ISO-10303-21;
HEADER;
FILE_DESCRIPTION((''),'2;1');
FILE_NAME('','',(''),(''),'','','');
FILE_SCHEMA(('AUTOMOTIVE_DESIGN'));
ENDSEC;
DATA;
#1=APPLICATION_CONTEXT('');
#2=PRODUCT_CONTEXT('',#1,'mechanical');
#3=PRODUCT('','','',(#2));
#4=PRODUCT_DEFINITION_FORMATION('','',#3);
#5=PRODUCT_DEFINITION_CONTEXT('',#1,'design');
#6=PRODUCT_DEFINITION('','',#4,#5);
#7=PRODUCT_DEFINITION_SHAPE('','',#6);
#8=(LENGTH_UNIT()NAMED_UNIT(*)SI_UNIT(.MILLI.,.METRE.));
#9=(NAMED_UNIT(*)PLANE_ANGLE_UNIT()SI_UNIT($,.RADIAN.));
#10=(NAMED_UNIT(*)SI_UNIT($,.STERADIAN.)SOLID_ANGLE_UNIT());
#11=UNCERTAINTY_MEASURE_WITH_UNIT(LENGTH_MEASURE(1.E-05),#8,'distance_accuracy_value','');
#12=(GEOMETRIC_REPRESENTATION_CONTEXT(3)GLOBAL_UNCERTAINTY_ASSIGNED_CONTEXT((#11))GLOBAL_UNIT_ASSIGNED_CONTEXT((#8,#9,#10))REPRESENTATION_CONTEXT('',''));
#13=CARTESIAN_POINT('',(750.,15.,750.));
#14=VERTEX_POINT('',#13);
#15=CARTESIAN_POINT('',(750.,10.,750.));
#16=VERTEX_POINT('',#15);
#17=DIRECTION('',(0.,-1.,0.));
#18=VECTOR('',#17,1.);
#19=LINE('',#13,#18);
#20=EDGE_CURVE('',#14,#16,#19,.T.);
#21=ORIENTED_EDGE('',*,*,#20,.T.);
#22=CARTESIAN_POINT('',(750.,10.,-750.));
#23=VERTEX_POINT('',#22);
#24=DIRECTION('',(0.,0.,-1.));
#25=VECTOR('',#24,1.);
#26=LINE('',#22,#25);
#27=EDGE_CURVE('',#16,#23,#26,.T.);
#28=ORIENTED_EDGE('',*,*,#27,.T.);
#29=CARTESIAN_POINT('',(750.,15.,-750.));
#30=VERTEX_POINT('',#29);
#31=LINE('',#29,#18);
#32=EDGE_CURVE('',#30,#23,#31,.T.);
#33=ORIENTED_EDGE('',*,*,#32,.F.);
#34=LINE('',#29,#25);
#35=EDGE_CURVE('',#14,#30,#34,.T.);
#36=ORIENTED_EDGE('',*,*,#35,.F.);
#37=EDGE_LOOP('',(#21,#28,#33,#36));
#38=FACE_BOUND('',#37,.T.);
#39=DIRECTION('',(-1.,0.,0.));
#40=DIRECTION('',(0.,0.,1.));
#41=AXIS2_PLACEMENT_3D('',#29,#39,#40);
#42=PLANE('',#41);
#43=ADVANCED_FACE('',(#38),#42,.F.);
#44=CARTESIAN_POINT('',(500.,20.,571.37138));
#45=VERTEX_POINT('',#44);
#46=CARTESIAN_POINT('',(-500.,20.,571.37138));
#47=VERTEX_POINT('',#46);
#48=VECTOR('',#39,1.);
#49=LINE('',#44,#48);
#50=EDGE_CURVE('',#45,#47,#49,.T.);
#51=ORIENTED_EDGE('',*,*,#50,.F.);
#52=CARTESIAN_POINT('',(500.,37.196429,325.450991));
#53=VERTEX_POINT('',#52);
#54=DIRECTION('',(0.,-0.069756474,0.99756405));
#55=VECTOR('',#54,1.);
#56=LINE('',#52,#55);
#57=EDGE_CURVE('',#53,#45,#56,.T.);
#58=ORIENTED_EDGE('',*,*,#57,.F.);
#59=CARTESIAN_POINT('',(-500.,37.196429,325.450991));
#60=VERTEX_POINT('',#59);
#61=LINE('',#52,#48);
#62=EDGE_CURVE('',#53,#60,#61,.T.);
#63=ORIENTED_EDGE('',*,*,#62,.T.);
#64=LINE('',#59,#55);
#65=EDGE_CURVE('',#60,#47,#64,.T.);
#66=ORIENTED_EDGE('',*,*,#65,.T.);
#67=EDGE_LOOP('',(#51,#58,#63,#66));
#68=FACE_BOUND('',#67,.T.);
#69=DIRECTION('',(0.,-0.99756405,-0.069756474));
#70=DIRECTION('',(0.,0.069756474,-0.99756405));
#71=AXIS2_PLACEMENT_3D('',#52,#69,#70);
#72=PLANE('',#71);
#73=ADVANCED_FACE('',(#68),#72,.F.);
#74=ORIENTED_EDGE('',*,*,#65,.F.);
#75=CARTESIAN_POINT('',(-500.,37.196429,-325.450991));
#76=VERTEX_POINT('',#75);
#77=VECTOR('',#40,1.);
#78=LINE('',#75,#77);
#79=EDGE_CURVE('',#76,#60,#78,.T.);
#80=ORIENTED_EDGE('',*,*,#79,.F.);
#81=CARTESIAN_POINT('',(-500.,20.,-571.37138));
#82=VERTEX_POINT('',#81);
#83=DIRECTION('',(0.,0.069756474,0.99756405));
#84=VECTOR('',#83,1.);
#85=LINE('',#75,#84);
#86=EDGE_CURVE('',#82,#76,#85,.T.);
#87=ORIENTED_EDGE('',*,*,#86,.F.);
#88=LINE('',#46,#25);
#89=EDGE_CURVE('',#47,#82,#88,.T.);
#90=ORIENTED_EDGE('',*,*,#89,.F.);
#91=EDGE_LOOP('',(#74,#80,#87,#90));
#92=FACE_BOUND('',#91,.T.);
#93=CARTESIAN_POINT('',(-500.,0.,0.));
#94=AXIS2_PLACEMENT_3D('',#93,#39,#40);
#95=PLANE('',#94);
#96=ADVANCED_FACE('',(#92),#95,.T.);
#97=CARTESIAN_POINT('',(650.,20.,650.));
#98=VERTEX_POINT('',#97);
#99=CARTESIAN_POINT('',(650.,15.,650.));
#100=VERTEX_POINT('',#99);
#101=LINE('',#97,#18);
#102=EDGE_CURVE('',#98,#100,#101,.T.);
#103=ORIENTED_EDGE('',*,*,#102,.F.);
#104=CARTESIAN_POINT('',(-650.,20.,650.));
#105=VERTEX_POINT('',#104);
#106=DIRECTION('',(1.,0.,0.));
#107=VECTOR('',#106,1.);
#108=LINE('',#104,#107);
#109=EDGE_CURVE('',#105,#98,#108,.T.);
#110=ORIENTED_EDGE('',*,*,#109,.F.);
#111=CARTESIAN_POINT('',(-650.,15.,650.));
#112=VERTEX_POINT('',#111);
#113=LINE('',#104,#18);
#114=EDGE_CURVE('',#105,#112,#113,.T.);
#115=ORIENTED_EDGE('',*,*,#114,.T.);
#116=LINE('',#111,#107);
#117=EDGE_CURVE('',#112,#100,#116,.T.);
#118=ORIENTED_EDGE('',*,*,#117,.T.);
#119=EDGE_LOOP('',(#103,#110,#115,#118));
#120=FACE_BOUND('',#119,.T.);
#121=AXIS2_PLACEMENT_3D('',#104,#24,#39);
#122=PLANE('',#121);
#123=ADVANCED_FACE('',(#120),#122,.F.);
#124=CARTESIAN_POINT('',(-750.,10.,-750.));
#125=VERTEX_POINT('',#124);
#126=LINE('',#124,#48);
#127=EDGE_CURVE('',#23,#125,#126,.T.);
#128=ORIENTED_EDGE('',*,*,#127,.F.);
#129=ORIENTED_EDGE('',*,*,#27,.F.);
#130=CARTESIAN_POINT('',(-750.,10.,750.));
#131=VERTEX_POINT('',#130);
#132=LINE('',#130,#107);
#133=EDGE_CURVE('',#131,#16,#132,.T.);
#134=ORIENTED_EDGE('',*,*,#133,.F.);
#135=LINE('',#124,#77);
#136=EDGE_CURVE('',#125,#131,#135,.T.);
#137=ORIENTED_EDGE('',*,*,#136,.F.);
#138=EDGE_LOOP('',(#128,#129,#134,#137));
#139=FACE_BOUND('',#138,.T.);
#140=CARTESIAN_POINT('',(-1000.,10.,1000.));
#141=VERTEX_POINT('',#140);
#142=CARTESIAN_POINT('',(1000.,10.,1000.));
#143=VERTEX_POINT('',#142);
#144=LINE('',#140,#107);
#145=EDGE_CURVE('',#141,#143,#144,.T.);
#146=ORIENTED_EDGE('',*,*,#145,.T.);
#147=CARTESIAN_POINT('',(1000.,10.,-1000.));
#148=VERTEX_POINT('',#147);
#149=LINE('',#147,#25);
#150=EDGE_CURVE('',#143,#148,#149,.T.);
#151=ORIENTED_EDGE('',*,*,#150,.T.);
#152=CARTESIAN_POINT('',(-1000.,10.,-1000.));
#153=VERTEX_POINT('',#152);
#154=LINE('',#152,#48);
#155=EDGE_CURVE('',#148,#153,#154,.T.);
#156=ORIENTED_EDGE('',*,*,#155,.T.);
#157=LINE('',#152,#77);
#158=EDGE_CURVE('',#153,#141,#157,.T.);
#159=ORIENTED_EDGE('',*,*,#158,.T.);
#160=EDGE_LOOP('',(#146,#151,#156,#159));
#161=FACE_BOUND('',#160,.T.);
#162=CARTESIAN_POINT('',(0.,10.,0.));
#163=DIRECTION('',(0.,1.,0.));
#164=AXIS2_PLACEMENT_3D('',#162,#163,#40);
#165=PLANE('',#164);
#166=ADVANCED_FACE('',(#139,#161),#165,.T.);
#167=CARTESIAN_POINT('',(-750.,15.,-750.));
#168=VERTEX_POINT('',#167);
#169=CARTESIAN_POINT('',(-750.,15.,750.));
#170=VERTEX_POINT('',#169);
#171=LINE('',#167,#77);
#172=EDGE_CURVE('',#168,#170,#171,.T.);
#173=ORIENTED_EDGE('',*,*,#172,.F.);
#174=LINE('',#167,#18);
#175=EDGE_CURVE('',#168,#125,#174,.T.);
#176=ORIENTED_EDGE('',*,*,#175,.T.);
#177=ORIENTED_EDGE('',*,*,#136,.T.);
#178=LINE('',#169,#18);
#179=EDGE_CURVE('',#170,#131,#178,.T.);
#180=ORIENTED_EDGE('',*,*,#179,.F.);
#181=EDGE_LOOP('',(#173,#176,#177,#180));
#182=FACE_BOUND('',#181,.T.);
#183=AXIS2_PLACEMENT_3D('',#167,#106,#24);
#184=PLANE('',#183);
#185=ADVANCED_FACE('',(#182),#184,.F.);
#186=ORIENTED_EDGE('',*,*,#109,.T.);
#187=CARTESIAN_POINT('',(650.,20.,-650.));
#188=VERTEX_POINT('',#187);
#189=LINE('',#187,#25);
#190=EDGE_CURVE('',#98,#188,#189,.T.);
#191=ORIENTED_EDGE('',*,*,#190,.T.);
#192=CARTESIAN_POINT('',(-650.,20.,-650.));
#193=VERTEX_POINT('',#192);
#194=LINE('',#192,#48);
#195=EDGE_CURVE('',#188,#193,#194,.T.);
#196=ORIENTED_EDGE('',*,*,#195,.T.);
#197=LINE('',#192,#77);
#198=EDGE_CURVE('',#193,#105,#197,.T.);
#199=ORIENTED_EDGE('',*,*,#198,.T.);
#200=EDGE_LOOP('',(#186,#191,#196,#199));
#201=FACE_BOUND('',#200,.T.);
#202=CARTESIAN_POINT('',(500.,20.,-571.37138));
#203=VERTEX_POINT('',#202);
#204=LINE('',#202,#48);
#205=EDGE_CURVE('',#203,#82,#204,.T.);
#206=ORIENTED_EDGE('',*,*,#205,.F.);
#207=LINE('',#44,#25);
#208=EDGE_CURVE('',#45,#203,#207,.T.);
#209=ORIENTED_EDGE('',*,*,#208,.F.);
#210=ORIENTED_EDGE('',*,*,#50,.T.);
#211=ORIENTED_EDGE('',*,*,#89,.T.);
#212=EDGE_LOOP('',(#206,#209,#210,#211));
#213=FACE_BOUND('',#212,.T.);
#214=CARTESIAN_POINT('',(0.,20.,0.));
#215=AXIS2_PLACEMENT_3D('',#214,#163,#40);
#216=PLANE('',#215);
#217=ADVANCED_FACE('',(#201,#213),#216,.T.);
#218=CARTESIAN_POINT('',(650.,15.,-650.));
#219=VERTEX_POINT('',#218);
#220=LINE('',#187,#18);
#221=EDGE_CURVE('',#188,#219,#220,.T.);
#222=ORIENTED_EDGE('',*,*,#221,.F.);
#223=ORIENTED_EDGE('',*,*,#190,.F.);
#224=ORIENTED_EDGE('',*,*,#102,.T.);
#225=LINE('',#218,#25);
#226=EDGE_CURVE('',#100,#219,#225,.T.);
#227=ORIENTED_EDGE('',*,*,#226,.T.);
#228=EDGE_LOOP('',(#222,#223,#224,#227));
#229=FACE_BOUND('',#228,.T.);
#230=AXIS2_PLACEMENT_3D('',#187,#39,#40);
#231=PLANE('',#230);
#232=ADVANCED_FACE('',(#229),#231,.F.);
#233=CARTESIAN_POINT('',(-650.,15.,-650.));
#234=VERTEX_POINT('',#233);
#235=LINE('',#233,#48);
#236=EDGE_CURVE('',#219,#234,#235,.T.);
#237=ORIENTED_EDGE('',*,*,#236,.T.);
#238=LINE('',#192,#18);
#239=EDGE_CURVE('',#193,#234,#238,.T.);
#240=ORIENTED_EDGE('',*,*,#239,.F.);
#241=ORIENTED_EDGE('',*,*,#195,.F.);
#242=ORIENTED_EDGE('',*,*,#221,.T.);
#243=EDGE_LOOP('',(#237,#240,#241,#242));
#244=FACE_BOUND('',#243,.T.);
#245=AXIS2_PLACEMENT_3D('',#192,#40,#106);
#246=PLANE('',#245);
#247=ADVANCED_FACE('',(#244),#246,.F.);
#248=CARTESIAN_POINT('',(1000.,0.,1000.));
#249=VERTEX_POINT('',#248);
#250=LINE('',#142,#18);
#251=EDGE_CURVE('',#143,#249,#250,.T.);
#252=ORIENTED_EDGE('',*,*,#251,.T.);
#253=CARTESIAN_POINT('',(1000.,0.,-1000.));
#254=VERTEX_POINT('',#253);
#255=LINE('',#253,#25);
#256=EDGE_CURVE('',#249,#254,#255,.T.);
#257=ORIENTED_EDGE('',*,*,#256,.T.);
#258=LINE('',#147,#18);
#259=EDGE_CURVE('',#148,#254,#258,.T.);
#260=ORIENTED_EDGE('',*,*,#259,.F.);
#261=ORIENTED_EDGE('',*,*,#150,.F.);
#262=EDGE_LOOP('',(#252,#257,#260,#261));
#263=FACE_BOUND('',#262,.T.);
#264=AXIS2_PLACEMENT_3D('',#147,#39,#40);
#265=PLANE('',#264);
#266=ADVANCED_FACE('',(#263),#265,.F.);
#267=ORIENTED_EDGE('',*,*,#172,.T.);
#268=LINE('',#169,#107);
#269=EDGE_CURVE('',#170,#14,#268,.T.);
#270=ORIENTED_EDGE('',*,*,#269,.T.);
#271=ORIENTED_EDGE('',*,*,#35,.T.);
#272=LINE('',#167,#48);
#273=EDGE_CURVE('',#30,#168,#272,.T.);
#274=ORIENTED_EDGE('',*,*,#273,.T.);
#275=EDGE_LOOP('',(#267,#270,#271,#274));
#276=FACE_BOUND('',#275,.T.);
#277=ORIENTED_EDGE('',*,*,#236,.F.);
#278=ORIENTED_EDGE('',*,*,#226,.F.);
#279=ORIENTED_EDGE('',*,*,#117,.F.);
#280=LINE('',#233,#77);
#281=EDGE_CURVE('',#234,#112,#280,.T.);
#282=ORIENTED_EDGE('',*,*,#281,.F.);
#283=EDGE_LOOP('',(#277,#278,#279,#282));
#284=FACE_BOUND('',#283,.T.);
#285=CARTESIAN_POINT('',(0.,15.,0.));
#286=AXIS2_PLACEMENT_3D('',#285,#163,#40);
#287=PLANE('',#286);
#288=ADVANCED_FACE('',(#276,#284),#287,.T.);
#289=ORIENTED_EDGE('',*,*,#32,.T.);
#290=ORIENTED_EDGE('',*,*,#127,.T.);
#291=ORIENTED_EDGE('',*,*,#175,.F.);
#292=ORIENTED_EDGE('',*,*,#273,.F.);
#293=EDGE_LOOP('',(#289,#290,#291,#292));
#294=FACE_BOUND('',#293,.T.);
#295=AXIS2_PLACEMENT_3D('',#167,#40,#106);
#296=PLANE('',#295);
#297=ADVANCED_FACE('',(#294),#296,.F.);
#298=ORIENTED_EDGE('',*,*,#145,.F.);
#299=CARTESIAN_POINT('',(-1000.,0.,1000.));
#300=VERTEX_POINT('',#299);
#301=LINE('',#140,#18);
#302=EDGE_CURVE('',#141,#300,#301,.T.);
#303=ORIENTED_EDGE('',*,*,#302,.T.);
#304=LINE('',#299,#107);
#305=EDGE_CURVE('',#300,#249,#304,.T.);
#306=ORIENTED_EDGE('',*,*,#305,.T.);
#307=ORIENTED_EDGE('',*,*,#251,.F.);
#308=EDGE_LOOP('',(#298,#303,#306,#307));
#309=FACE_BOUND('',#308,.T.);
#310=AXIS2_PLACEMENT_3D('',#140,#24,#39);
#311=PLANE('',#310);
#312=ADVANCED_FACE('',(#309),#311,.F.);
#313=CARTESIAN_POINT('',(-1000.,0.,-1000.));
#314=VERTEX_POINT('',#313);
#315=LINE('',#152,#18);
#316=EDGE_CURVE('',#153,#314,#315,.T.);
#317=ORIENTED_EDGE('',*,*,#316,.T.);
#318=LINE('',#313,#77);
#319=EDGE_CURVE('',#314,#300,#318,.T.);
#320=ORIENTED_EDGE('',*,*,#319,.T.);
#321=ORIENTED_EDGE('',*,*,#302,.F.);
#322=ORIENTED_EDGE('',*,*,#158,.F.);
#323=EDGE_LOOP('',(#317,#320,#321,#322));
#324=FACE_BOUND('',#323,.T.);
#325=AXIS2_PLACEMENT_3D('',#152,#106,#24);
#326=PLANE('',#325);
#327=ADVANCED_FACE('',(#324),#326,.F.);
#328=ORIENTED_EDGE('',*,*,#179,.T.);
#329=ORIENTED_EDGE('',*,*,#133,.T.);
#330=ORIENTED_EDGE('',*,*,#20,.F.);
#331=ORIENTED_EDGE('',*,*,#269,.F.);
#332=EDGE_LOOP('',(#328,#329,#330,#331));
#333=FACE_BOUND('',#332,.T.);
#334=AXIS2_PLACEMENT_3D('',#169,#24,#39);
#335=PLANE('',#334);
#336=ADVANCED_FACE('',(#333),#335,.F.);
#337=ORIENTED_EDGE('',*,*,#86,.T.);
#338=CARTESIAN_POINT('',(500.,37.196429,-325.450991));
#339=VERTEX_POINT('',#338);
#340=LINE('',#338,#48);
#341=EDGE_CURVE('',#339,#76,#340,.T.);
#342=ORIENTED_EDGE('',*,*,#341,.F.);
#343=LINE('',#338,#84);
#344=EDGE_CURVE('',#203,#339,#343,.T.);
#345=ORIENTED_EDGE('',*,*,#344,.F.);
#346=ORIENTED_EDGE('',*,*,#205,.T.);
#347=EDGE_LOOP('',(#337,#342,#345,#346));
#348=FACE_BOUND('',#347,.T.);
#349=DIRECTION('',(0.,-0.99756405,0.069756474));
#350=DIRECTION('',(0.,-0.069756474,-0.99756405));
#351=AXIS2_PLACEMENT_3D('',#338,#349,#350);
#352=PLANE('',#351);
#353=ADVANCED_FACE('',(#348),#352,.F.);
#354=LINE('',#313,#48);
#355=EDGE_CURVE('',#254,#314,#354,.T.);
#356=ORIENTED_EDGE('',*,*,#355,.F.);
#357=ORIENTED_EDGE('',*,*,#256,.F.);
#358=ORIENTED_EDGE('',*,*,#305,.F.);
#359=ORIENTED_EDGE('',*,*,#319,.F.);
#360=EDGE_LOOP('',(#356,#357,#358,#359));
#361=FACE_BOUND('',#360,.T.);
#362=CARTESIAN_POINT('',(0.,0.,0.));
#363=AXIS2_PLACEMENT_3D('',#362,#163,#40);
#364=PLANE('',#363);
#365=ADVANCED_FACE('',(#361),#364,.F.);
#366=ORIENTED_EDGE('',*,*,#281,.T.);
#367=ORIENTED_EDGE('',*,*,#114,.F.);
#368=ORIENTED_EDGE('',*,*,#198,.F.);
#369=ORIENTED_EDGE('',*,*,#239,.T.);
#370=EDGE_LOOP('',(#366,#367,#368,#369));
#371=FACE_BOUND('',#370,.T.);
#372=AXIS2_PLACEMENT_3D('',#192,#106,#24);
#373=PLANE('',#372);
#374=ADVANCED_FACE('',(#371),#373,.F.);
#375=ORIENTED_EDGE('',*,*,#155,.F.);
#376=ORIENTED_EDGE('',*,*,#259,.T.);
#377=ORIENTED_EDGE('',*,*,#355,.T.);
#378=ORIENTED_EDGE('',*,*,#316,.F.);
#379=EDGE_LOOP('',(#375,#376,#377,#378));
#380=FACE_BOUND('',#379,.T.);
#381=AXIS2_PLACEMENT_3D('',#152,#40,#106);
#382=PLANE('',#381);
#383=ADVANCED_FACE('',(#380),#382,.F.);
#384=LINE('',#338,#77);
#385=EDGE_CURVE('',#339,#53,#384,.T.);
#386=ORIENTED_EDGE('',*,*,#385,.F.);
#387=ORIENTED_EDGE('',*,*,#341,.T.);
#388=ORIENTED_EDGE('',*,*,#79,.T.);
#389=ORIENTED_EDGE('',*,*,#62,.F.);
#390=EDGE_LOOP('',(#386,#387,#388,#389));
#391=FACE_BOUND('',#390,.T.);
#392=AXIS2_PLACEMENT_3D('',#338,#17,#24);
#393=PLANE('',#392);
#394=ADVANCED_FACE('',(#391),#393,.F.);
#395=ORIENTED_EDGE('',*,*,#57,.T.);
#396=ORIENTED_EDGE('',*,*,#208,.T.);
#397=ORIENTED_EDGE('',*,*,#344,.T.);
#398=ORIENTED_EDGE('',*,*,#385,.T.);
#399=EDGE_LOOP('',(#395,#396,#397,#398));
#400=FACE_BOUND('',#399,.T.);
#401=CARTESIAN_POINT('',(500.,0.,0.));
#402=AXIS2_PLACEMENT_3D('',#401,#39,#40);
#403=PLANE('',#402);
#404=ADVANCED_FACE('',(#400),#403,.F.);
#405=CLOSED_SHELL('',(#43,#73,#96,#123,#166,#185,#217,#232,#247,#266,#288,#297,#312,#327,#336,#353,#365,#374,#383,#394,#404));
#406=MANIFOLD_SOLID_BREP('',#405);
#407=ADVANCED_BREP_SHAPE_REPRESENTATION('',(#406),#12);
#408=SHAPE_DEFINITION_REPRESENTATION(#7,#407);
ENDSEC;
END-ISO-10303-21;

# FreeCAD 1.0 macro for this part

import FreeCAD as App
import Part
import Sketcher

V = App.Vector
Q = App.Units.Quantity


def add_polygon(sketch, points):
    """Adds a closed chain of lines whose ends are joined by coincident constraints."""
    first, n = sketch.GeometryCount, len(points)
    for a, b in zip(points, points[1:] + points[:1]):
        sketch.addGeometry(Part.LineSegment(App.Vector(*a, 0), App.Vector(*b, 0)), False)
    for i in range(n):
        sketch.addConstraint(Sketcher.Constraint("Coincident", first + i, 2, first + (i + 1) % n, 1))

doc = App.newDocument("Part")
body = doc.addObject("PartDesign::Body", "Body")

sketch1 = body.newObject("Sketcher::SketchObject", "Sketch")
sketch1.AttachmentSupport = (doc.getObject("XZ_Plane"), [""])
sketch1.MapMode = "FlatFace"
add_polygon(sketch1, [(-1000, -1000), (-1000, 1000), (1000, 1000), (1000, -1000)])
sketch1.addConstraint([
    Sketcher.Constraint("Vertical", 0),
    Sketcher.Constraint("Horizontal", 1),
    Sketcher.Constraint("Vertical", 2),
    Sketcher.Constraint("Horizontal", 3),
    Sketcher.Constraint("Symmetric", 0, 2, 2, 2, -1, 1),
    Sketcher.Constraint("Equal", 3, 0),
    Sketcher.Constraint("DistanceX", 1, 1, 1, 2, Q("2000 mm")),
])
pad1 = body.newObject("PartDesign::Pad", "Pad")
pad1.Profile = sketch1
pad1.Length = 10
pad1.Reversed = True

sketch2 = body.newObject("Sketcher::SketchObject", "Sketch001")
sketch2.AttachmentSupport = (doc.getObject("XZ_Plane"), [""])
sketch2.MapMode = "FlatFace"
sketch2.AttachmentOffset = App.Placement(V(0, 0, -10), App.Rotation())
add_polygon(sketch2, [(-750, -750), (-750, 750), (750, 750), (750, -750)])
sketch2.addConstraint([
    Sketcher.Constraint("Vertical", 0),
    Sketcher.Constraint("Horizontal", 1),
    Sketcher.Constraint("Vertical", 2),
    Sketcher.Constraint("Horizontal", 3),
    Sketcher.Constraint("Symmetric", 0, 2, 2, 2, -1, 1),
    Sketcher.Constraint("Equal", 3, 0),
    Sketcher.Constraint("DistanceX", 1, 1, 1, 2, Q("1500 mm")),
])
pad2 = body.newObject("PartDesign::Pad", "Pad001")
pad2.Profile = sketch2
pad2.Length = 5
pad2.Reversed = True

sketch3 = body.newObject("Sketcher::SketchObject", "Sketch002")
sketch3.AttachmentSupport = (doc.getObject("XZ_Plane"), [""])
sketch3.MapMode = "FlatFace"
sketch3.AttachmentOffset = App.Placement(V(0, 0, -15), App.Rotation())
add_polygon(sketch3, [(-650, -650), (-650, 650), (650, 650), (650, -650)])
sketch3.addConstraint([
    Sketcher.Constraint("Vertical", 0),
    Sketcher.Constraint("Horizontal", 1),
    Sketcher.Constraint("Vertical", 2),
    Sketcher.Constraint("Horizontal", 3),
    Sketcher.Constraint("Symmetric", 0, 2, 2, 2, -1, 1),
    Sketcher.Constraint("Equal", 3, 0),
    Sketcher.Constraint("DistanceX", 1, 1, 1, 2, Q("1300 mm")),
])
pad3 = body.newObject("PartDesign::Pad", "Pad002")
pad3.Profile = sketch3
pad3.Length = 5
pad3.Reversed = True

sketch4 = body.newObject("Sketcher::SketchObject", "Sketch003")
sketch4.AttachmentSupport = (doc.getObject("YZ_Plane"), [""])
sketch4.MapMode = "FlatFace"
add_polygon(sketch4, [(37, -325), (37, 325), (20, 571), (20, -571)])
sketch4.addConstraint([
    Sketcher.Constraint("Vertical", 0),
    Sketcher.Constraint("Vertical", 2),
    Sketcher.Constraint("Equal", 1, 3),
    Sketcher.Constraint("Angle", 1, Q("94 deg")),
    Sketcher.Constraint("DistanceX", -1, 1, 1, 2, Q("20 mm")),
    Sketcher.Constraint("Distance", 1, Q("246.520901 mm")),
    Sketcher.Constraint("DistanceY", 2, 2, 2, 1, Q("1142.74276 mm")),
    Sketcher.Constraint("DistanceY", -1, 1, 0, 2, Q("325.450991 mm")),
])
pad4 = body.newObject("PartDesign::Pad", "Pad003")
pad4.Profile = sketch4
pad4.Length = 1000
pad4.Midplane = True

doc.recompute()
